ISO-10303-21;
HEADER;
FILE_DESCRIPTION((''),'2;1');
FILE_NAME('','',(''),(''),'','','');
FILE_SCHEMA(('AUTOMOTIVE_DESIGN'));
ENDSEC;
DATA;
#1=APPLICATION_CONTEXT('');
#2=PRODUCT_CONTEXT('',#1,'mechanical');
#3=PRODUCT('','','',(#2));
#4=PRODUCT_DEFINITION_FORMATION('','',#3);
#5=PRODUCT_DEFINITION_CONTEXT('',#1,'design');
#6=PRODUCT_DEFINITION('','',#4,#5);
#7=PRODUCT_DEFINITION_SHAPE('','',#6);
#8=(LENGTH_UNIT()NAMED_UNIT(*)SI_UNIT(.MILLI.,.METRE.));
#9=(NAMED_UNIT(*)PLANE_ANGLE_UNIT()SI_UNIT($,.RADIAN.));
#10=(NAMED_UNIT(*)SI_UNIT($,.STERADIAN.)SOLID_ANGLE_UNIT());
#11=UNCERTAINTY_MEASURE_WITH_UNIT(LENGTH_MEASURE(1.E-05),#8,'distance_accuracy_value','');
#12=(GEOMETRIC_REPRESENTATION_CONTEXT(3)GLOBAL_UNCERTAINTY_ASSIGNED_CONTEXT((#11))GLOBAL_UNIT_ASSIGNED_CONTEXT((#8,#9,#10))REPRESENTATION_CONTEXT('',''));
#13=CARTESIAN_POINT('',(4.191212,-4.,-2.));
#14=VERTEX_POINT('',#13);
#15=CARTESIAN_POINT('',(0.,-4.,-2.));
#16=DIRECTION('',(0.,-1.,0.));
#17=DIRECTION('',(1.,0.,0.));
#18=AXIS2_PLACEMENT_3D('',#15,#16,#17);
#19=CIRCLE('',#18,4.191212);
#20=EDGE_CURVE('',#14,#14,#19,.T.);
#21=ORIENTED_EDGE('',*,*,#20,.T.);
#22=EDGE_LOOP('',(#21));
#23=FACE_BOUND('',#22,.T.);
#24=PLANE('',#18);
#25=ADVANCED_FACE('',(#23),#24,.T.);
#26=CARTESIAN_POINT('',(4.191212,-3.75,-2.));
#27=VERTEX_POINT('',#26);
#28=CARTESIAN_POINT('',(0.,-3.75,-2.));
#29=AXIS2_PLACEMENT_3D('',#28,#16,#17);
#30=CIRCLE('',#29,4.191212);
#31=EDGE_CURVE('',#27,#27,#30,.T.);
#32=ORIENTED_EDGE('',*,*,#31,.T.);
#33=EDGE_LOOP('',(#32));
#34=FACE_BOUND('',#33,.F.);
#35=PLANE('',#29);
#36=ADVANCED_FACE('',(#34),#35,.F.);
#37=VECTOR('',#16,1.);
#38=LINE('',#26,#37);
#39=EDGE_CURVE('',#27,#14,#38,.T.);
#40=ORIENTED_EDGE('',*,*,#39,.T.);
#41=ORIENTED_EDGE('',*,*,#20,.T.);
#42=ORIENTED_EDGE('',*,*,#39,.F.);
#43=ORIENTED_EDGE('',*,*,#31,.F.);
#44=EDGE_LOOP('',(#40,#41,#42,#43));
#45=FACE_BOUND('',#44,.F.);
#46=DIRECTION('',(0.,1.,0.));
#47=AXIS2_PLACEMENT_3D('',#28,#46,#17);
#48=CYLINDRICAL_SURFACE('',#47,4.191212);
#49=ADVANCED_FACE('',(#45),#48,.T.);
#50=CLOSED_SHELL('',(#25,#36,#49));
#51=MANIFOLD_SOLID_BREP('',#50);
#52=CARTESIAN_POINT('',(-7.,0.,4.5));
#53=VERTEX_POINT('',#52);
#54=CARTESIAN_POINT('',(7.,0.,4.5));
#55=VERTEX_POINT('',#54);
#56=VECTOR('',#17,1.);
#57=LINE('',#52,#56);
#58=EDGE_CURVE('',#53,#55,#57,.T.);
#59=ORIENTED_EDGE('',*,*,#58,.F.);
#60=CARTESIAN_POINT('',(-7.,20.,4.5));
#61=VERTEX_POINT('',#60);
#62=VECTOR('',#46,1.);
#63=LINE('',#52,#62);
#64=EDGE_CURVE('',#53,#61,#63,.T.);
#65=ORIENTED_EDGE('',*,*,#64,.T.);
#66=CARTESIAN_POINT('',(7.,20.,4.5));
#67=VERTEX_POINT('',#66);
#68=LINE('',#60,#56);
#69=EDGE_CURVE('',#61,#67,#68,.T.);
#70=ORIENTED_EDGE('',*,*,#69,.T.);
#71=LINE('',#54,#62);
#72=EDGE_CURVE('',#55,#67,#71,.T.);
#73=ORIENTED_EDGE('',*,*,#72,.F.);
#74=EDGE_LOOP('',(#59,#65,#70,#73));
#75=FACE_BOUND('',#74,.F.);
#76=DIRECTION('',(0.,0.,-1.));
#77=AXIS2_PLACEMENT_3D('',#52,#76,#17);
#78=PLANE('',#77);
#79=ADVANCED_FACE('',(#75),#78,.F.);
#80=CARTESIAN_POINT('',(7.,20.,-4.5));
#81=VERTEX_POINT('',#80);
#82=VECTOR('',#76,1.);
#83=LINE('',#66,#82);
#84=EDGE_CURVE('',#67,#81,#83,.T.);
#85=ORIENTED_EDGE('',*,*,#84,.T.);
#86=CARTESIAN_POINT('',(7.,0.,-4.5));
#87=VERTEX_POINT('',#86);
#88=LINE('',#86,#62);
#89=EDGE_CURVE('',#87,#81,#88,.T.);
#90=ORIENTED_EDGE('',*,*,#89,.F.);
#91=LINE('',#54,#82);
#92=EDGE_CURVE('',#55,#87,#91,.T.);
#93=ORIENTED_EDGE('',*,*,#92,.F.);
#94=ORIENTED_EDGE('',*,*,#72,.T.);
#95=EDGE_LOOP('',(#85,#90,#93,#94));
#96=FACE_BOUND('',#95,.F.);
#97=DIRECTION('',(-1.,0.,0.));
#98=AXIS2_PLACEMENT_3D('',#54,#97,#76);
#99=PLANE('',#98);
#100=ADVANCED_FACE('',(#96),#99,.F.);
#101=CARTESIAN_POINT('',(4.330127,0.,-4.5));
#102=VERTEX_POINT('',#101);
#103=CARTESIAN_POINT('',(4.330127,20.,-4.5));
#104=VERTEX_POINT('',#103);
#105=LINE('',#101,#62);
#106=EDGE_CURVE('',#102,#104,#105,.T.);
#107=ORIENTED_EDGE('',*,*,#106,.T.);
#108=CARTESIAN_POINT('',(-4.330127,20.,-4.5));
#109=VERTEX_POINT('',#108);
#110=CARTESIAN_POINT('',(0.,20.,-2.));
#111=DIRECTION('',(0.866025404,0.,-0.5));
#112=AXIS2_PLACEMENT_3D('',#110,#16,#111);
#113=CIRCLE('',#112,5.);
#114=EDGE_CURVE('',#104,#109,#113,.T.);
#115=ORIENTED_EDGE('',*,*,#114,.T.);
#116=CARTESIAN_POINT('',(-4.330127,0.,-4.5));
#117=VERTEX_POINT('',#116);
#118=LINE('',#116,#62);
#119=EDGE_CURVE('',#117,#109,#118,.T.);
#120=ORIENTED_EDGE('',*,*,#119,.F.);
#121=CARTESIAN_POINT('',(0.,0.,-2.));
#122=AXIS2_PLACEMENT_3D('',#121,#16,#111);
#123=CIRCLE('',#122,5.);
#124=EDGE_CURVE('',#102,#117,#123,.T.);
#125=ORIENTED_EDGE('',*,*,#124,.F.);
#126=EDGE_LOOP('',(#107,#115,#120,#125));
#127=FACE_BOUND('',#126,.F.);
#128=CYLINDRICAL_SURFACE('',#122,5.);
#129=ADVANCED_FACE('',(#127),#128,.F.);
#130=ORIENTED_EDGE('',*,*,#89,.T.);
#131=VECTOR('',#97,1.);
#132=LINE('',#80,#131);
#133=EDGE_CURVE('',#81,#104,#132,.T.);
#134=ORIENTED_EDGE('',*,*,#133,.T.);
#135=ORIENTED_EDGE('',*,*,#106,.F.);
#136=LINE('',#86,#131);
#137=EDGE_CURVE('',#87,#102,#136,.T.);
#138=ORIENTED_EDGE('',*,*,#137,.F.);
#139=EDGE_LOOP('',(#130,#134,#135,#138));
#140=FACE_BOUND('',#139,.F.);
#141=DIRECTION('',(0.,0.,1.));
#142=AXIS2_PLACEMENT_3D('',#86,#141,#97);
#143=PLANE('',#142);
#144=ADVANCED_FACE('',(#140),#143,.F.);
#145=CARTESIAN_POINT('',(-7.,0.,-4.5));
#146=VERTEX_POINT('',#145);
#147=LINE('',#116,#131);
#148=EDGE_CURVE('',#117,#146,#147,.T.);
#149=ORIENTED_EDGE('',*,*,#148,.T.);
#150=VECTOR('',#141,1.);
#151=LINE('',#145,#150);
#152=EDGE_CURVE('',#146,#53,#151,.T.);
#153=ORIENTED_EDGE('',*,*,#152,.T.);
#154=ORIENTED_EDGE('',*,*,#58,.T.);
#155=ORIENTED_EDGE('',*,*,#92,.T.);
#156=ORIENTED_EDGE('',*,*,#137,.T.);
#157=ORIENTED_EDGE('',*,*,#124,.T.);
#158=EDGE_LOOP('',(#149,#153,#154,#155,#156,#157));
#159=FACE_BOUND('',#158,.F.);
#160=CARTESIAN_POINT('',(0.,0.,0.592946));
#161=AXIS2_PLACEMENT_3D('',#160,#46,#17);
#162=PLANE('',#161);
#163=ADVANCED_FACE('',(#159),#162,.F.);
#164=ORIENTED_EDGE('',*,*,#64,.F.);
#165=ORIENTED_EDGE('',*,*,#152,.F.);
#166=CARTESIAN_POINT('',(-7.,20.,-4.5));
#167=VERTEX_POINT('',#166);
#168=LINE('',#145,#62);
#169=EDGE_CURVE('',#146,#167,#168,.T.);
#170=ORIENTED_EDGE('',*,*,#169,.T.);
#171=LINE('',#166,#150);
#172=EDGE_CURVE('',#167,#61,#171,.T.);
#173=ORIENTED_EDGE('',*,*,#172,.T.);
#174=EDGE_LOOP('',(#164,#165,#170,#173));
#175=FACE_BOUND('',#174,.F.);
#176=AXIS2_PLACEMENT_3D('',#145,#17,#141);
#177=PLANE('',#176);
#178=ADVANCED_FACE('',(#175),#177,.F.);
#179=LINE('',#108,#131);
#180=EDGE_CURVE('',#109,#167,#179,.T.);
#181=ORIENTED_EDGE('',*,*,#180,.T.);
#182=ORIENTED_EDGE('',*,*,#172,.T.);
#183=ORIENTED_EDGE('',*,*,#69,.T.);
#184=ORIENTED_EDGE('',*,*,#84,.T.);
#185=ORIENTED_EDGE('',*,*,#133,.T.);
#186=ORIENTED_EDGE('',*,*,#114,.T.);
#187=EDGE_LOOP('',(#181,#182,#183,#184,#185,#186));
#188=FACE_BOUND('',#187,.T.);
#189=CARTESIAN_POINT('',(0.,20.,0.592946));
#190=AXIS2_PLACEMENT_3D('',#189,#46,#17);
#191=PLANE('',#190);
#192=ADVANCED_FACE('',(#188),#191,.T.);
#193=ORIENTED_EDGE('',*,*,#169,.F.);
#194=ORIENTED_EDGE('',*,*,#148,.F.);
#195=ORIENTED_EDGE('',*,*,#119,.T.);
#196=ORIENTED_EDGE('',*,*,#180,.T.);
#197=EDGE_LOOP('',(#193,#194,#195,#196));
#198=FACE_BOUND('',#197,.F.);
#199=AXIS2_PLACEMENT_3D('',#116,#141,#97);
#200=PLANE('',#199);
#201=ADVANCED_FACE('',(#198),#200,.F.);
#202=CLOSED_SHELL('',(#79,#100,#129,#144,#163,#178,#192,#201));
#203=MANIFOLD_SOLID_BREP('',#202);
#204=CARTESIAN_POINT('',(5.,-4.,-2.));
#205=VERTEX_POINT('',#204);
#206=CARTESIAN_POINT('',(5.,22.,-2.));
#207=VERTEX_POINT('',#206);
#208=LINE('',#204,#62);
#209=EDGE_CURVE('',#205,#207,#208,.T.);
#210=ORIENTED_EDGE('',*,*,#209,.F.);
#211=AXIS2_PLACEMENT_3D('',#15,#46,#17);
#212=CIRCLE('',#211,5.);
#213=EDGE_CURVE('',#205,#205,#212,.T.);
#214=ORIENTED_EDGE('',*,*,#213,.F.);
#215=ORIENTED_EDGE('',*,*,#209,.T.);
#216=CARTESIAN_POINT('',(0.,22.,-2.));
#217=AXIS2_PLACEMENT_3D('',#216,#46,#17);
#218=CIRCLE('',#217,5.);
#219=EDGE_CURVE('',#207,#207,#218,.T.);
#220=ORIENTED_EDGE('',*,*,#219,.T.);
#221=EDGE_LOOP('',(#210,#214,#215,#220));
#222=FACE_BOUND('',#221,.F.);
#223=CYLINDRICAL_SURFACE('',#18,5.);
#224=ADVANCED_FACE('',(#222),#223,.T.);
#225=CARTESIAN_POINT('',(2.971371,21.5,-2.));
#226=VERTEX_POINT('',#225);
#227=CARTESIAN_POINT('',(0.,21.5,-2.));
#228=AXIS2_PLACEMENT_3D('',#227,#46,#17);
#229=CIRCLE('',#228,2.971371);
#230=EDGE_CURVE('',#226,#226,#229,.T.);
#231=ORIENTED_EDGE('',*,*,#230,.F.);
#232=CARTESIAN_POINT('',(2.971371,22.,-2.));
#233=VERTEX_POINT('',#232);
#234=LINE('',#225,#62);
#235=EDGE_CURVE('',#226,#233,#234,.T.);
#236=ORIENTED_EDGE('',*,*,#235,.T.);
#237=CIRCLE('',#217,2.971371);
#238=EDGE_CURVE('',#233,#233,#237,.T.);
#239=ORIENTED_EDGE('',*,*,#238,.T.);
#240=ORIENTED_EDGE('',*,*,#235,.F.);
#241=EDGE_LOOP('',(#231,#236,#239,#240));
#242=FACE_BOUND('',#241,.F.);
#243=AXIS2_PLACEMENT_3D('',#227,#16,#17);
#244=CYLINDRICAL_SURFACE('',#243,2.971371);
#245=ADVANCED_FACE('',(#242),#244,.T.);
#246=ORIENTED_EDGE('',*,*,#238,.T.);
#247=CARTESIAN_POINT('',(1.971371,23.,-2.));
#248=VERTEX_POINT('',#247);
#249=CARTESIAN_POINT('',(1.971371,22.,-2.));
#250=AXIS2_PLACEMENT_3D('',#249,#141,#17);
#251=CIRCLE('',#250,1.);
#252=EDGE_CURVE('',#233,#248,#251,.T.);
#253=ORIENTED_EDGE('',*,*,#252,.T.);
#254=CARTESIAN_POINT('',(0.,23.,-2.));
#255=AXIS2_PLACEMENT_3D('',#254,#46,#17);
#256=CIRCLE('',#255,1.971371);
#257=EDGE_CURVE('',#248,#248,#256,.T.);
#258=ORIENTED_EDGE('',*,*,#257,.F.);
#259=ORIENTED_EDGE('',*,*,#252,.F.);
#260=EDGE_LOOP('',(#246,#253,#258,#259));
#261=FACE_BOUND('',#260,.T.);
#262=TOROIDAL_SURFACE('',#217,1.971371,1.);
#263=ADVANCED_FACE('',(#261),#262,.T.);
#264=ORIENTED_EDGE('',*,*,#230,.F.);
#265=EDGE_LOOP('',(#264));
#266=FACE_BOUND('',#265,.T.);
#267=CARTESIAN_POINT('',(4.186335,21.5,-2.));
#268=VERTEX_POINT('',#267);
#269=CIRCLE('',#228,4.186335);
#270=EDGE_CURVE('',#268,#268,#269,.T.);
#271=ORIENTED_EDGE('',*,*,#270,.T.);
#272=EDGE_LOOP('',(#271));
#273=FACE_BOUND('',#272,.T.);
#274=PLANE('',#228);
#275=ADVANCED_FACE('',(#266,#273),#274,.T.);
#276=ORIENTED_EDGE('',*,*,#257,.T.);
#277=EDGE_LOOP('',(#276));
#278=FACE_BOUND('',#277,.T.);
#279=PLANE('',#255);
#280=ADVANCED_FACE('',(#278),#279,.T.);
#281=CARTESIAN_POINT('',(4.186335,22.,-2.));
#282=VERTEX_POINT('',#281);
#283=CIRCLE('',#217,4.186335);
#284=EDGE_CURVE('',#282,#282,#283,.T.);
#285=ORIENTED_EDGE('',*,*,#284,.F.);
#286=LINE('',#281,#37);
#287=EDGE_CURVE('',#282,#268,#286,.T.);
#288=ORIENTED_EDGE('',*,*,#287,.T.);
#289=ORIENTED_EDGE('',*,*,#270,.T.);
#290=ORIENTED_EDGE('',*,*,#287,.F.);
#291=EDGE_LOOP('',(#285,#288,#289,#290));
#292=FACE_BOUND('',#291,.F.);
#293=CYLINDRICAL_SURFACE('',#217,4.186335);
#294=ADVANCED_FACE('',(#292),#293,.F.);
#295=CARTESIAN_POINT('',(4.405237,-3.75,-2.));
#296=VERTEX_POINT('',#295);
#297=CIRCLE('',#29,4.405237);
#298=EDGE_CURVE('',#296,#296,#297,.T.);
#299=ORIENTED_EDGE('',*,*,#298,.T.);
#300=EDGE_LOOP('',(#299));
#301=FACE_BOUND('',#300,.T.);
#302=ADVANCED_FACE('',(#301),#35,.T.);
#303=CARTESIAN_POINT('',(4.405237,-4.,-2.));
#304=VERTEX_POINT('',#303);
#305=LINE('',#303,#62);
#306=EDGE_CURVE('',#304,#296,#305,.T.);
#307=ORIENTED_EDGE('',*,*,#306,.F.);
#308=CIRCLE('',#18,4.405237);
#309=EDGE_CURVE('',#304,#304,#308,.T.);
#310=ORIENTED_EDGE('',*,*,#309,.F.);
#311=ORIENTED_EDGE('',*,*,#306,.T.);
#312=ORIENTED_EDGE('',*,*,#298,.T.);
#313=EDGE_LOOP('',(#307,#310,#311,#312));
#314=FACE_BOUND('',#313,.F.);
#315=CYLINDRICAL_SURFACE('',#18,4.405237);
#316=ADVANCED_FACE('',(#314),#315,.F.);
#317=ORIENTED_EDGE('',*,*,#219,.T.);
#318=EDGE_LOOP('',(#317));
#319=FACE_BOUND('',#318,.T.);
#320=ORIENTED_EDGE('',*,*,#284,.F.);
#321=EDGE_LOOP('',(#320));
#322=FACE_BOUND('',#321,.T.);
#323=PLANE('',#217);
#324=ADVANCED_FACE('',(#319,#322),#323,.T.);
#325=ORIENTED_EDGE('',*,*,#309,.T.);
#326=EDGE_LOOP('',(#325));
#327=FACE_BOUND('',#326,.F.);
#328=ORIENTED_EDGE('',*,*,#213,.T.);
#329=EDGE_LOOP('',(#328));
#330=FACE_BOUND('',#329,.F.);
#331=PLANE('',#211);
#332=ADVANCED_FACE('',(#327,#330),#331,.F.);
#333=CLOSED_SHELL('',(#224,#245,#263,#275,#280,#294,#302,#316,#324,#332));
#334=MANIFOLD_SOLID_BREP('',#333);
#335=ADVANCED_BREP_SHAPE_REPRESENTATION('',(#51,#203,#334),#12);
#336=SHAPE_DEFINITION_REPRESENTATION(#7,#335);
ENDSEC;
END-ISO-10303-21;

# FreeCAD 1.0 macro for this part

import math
import FreeCAD as App
import Part
import Sketcher


def edges_at(feature, points):
    """Names of the edges that pass closest to the given points."""
    edges = feature.Shape.Edges
    near = lambda p: min(range(len(edges)), key=lambda i: edges[i].distToShape(Part.Vertex(*p))[0])
    return sorted({f"Edge{near(p) + 1}" for p in points})

doc = App.newDocument("Part")
body = doc.addObject("PartDesign::Body", "Body")

sketch1 = body.newObject("Sketcher::SketchObject", "Sketch")
sketch1.AttachmentSupport = (doc.getObject("XZ_Plane"), [""])
sketch1.MapMode = "FlatFace"
sketch1.addGeometry([
    Part.LineSegment(App.Vector(-4.3, -4.5, 0), App.Vector(-7, -4.5, 0)),
    Part.LineSegment(App.Vector(-7, -4.5, 0), App.Vector(-7, 4.5, 0)),
    Part.LineSegment(App.Vector(-7, 4.5, 0), App.Vector(7, 4.5, 0)),
    Part.LineSegment(App.Vector(7, 4.5, 0), App.Vector(7, -4.5, 0)),
    Part.LineSegment(App.Vector(7, -4.5, 0), App.Vector(4.3, -4.5, 0)),
    Part.ArcOfCircle(Part.Circle(App.Vector(0, -2, 0), App.Vector(0, 0, 1), 5), math.radians(-30), math.radians(210)),
], False)
sketch1.addConstraint([
    Sketcher.Constraint("Coincident", 0, 2, 1, 1),
    Sketcher.Constraint("Coincident", 1, 2, 2, 1),
    Sketcher.Constraint("Coincident", 2, 2, 3, 1),
    Sketcher.Constraint("Coincident", 3, 2, 4, 1),
    Sketcher.Constraint("Coincident", 4, 2, 5, 1),
    Sketcher.Constraint("Coincident", 5, 2, 0, 1),
    Sketcher.Constraint("Horizontal", 0),
    Sketcher.Constraint("Vertical", 1),
    Sketcher.Constraint("Horizontal", 2),
    Sketcher.Constraint("Vertical", 3),
    Sketcher.Constraint("Horizontal", 4),
    Sketcher.Constraint("Symmetric", 0, 2, 2, 2, -1, 1),
    Sketcher.Constraint("Symmetric", 4, 2, 5, 2, -2),
    Sketcher.Constraint("Radius", 5, 5.0),
    Sketcher.Constraint("DistanceX", 2, 1, 2, 2, 14.0),
    Sketcher.Constraint("DistanceY", 1, 1, 1, 2, 9.0),
    Sketcher.Constraint("DistanceY", 5, 3, -1, 1, 2.0),
])
pad1 = body.newObject("PartDesign::Pad", "Pad")
pad1.Profile = sketch1
pad1.Length = 20
pad1.Reversed = True
body2 = doc.addObject("PartDesign::Body", "Body001")

sketch2 = body2.newObject("Sketcher::SketchObject", "Sketch001")
sketch2.AttachmentSupport = (doc.getObject("XZ_Plane001"), [""])
sketch2.MapMode = "FlatFace"
sketch2.AttachmentOffset = App.Placement(App.Vector(0, 0, 4), App.Rotation())
sketch2.addGeometry(Part.Circle(App.Vector(0, -2, 0), App.Vector(0, 0, 1), 5), False)
sketch2.addConstraint([
    Sketcher.Constraint("PointOnObject", 0, 3, -2),
    Sketcher.Constraint("Diameter", 0, 10.0),
    Sketcher.Constraint("DistanceY", 0, 3, -1, 1, 2.0),
])
pad2 = body2.newObject("PartDesign::Pad", "Pad001")
pad2.Profile = sketch2
pad2.Length = 26
pad2.Reversed = True

sketch3 = body2.newObject("Sketcher::SketchObject", "Sketch002")
sketch3.AttachmentSupport = (doc.getObject("XZ_Plane001"), [""])
sketch3.MapMode = "FlatFace"
sketch3.AttachmentOffset = App.Placement(App.Vector(0, 0, -22), App.Rotation())
sketch3.addGeometry(Part.Circle(App.Vector(0, -2, 0), App.Vector(0, 0, 1), 4.2), False)
sketch3.addConstraint([
    Sketcher.Constraint("PointOnObject", 0, 3, -2),
    Sketcher.Constraint("DistanceY", 0, 3, -1, 1, 2.0),
    Sketcher.Constraint("Diameter", 0, 8.37267),
])
pocket1 = body2.newObject("PartDesign::Pocket", "Pocket")
pocket1.Profile = sketch3
pocket1.Length = 0.5
pocket1.Reversed = True

sketch4 = body2.newObject("Sketcher::SketchObject", "Sketch003")
sketch4.AttachmentSupport = (doc.getObject("XZ_Plane001"), [""])
sketch4.MapMode = "FlatFace"
sketch4.AttachmentOffset = App.Placement(App.Vector(0, 0, -21.5), App.Rotation())
sketch4.addGeometry(Part.Circle(App.Vector(0, -2, 0), App.Vector(0, 0, 1), 3), False)
sketch4.addConstraint([
    Sketcher.Constraint("PointOnObject", 0, 3, -2),
    Sketcher.Constraint("DistanceY", 0, 3, -1, 1, 2.0),
    Sketcher.Constraint("Diameter", 0, 5.942742),
])
pad3 = body2.newObject("PartDesign::Pad", "Pad002")
pad3.Profile = sketch4
pad3.Length = 1.5
pad3.Reversed = True
doc.recompute()

fillet = body2.newObject("PartDesign::Fillet", "Fillet")
fillet.Base = (pad3, edges_at(pad3, [(-2.971, 23, -2)]))
fillet.Radius = 1

sketch5 = body2.newObject("Sketcher::SketchObject", "Sketch004")
sketch5.AttachmentSupport = (doc.getObject("XZ_Plane001"), [""])
sketch5.MapMode = "FlatFace"
sketch5.AttachmentOffset = App.Placement(App.Vector(0, 0, 4), App.Rotation())
sketch5.addGeometry(Part.Circle(App.Vector(0, -2, 0), App.Vector(0, 0, 1), 4.4), False)
sketch5.addConstraint([
    Sketcher.Constraint("PointOnObject", 0, 3, -2),
    Sketcher.Constraint("DistanceY", 0, 3, -1, 1, 2.0),
    Sketcher.Constraint("Diameter", 0, 8.810473),
])
pocket2 = body2.newObject("PartDesign::Pocket", "Pocket001")
pocket2.Profile = sketch5
pocket2.Length = 0.25
body3 = doc.addObject("PartDesign::Body", "Body002")

sketch6 = body3.newObject("Sketcher::SketchObject", "Sketch005")
sketch6.AttachmentSupport = (doc.getObject("XZ_Plane002"), [""])
sketch6.MapMode = "FlatFace"
sketch6.AttachmentOffset = App.Placement(App.Vector(0, 0, 3.75), App.Rotation())
sketch6.addGeometry(Part.Circle(App.Vector(0, -2, 0), App.Vector(0, 0, 1), 4.2), False)
sketch6.addConstraint([
    Sketcher.Constraint("PointOnObject", 0, 3, -2),
    Sketcher.Constraint("DistanceY", 0, 3, -1, 1, 2.0),
    Sketcher.Constraint("Diameter", 0, 8.382424),
])
pad4 = body3.newObject("PartDesign::Pad", "Pad003")
pad4.Profile = sketch6
pad4.Length = 0.25

doc.recompute()
